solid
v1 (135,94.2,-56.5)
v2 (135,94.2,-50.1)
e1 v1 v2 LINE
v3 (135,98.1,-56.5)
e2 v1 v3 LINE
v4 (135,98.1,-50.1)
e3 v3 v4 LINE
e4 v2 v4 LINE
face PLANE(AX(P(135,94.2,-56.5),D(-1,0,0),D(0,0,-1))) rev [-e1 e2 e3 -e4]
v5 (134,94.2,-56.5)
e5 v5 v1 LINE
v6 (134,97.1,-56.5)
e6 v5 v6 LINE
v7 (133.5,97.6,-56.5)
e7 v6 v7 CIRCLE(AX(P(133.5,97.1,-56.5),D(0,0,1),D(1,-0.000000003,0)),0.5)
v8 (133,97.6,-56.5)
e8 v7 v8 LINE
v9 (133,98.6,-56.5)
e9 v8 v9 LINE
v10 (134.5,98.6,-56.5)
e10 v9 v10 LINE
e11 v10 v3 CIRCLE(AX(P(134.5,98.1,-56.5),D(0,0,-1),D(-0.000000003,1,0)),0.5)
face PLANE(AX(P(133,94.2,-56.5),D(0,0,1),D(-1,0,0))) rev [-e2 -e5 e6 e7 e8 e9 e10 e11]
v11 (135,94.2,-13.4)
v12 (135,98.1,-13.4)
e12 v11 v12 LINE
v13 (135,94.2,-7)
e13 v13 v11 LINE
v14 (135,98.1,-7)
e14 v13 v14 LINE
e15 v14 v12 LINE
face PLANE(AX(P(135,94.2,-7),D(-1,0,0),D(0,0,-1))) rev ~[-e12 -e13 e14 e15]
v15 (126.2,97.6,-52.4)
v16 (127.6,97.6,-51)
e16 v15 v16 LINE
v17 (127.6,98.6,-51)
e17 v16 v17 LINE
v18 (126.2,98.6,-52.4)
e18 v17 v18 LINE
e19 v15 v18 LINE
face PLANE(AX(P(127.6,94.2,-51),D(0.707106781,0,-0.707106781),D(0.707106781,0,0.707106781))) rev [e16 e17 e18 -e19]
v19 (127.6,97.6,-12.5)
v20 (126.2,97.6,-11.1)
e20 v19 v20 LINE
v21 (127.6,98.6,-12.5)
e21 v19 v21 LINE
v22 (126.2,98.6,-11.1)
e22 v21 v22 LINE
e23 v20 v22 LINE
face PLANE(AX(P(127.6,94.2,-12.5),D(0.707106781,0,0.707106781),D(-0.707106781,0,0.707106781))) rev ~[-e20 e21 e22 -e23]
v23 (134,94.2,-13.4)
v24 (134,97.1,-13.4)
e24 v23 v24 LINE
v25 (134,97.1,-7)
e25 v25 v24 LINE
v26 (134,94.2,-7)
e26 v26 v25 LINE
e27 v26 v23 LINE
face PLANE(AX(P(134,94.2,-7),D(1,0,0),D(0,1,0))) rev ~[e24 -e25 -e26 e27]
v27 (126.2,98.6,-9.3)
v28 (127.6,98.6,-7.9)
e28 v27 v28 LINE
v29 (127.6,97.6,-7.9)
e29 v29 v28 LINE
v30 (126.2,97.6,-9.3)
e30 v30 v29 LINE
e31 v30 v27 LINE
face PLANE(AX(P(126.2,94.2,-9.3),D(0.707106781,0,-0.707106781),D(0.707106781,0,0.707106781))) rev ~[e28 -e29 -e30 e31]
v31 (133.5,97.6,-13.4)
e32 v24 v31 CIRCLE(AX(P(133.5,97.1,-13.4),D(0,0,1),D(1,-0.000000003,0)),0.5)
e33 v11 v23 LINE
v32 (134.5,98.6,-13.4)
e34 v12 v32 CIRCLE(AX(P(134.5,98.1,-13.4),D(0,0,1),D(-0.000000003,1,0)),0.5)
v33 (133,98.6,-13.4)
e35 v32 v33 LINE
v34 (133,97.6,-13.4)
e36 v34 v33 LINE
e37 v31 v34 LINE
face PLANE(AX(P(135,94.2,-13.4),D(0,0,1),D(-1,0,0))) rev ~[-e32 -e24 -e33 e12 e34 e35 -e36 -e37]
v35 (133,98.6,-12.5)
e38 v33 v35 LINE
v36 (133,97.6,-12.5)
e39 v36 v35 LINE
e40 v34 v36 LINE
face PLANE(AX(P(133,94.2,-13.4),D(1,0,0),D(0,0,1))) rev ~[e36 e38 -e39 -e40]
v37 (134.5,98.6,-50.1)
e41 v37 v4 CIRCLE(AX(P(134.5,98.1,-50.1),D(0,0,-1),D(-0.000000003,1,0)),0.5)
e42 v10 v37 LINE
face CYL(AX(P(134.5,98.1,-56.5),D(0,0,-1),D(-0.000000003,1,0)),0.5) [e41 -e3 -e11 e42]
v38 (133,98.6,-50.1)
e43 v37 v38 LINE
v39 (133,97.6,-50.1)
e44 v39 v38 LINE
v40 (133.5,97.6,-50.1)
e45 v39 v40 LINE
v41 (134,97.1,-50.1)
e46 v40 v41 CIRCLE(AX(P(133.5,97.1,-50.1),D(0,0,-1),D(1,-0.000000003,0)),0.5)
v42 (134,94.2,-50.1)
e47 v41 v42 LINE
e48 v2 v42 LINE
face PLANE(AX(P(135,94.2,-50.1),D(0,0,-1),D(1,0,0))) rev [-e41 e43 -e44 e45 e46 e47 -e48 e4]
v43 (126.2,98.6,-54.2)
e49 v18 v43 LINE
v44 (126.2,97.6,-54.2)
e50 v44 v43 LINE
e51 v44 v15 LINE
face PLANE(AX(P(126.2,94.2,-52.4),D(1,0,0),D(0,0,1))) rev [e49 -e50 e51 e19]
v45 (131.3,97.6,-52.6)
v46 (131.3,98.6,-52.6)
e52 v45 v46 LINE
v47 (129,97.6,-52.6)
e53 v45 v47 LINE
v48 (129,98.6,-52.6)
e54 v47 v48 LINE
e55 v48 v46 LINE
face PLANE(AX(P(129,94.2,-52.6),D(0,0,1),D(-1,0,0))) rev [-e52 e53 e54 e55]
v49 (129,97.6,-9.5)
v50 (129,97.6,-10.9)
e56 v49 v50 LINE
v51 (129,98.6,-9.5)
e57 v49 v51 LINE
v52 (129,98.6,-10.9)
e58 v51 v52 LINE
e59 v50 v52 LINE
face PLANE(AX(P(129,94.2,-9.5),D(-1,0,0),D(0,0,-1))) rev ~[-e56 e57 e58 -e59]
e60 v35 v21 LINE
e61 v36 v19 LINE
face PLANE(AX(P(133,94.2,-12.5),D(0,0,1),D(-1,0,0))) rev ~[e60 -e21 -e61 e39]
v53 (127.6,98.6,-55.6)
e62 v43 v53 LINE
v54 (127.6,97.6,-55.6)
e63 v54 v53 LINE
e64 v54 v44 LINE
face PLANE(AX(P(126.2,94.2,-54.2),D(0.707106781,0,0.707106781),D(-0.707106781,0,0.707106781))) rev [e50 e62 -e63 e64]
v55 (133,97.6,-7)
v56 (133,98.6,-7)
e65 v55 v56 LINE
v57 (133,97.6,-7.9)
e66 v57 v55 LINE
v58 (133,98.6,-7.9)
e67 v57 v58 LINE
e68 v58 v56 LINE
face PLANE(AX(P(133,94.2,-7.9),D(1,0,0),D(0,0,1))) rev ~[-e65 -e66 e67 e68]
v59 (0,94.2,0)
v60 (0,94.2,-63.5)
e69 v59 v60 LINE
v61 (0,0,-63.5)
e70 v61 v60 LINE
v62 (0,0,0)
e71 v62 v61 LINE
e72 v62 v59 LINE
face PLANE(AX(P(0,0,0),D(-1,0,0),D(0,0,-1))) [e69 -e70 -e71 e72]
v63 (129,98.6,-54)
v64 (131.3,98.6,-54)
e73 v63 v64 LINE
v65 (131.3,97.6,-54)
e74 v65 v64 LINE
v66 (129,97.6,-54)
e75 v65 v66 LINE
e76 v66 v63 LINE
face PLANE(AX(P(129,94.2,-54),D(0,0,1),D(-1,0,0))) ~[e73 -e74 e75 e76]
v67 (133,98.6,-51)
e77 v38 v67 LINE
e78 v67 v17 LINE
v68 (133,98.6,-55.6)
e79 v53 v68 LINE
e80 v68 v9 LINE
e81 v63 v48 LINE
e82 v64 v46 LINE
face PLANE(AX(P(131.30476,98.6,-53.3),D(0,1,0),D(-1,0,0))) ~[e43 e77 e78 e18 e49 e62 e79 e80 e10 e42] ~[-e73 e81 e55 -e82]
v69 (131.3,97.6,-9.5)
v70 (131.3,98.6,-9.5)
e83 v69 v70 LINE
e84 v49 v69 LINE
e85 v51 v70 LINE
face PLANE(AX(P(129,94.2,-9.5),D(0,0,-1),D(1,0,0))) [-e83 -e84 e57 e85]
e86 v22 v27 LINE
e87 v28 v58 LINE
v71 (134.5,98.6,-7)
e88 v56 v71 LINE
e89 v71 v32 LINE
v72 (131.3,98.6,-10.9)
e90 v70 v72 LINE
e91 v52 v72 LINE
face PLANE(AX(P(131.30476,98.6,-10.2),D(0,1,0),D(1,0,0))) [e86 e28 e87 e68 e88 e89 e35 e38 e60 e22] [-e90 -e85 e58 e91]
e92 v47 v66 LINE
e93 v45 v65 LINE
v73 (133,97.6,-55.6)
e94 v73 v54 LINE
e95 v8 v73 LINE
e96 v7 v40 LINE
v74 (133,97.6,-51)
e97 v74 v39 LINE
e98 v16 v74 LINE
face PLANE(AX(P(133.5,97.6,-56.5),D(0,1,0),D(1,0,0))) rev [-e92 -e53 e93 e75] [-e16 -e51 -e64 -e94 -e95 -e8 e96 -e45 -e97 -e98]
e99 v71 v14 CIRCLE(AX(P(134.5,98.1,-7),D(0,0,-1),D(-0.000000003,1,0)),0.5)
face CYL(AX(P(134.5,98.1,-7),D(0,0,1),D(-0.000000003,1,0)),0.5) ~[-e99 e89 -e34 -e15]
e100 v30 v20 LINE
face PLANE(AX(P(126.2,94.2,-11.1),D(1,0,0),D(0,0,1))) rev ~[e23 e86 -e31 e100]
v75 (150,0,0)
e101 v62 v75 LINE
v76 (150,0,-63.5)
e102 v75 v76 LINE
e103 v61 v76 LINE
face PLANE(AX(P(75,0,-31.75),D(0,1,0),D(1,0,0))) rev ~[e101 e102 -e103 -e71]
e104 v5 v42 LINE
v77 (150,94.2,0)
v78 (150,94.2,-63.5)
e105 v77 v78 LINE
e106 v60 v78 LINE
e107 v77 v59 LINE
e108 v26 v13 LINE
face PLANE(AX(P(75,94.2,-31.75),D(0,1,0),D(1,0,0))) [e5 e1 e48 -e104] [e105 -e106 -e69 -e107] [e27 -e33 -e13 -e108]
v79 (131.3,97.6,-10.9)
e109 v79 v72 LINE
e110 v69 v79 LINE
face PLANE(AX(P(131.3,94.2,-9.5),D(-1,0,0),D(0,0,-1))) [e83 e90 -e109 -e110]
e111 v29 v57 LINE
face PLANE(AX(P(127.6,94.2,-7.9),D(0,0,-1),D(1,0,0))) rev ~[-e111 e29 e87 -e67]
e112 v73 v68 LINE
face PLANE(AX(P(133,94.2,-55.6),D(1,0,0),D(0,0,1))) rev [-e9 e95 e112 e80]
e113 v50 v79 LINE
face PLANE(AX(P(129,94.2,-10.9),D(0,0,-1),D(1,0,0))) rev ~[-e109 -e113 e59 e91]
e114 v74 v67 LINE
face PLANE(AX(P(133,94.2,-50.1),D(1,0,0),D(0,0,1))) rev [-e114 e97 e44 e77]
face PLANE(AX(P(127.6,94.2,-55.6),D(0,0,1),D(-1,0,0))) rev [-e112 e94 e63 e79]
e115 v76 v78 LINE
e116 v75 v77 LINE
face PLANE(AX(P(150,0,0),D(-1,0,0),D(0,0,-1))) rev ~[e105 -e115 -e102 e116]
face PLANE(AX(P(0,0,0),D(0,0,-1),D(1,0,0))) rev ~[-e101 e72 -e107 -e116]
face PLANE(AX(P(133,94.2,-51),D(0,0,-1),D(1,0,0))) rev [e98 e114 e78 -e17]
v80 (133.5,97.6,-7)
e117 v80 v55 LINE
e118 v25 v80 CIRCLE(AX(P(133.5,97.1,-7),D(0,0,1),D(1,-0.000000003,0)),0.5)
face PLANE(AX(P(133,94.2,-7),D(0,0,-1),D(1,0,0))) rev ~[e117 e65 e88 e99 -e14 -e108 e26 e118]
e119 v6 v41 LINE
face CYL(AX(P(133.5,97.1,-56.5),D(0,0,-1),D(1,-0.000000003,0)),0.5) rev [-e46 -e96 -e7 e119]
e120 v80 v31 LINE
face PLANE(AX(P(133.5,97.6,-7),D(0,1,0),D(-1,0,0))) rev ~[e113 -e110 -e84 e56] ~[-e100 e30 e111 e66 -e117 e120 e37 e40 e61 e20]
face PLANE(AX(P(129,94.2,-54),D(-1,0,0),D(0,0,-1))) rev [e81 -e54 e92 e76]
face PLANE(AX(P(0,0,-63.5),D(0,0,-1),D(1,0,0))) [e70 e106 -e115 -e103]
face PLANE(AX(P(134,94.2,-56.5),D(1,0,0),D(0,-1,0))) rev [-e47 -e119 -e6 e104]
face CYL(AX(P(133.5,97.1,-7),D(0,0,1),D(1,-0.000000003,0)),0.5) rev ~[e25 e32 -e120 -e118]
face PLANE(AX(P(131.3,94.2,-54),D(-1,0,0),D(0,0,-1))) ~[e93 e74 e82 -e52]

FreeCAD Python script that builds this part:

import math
import FreeCAD as App
import Part
import Sketcher
from FreeCAD import Vector
Q = App.Units.Quantity

doc = App.newDocument("Part")
body = doc.addObject("PartDesign::Body", "Body")

sketch1 = body.newObject("Sketcher::SketchObject", "Sketch")
sketch1.AttachmentSupport = (doc.getObject("XZ_Plane"), [""])
sketch1.MapMode = "FlatFace"
sketch1.addGeometry([
    Part.LineSegment(Vector(0, -64, 0), Vector(0, 0, 0)),
    Part.LineSegment(Vector(0, 0, 0), Vector(150, 0, 0)),
    Part.LineSegment(Vector(150, 0, 0), Vector(150, -64, 0)),
    Part.LineSegment(Vector(150, -64, 0), Vector(0, -64, 0)),
], False)
sketch1.addConstraint([
    Sketcher.Constraint("Coincident", 0, 2, 1, 1),
    Sketcher.Constraint("Coincident", 1, 2, 2, 1),
    Sketcher.Constraint("Coincident", 2, 2, 3, 1),
    Sketcher.Constraint("Coincident", 3, 2, 0, 1),
    Sketcher.Constraint("Vertical", 0),
    Sketcher.Constraint("Horizontal", 1),
    Sketcher.Constraint("Vertical", 2),
    Sketcher.Constraint("Horizontal", 3),
    Sketcher.Constraint("Coincident", 0, 2, -1, 1),
    Sketcher.Constraint("DistanceX", 1, 1, 1, 2, Q("150 mm")),
    Sketcher.Constraint("DistanceY", 0, 1, 0, 2, Q("63.5 mm")),
])
pad1 = body.newObject("PartDesign::Pad", "Pad")
pad1.Profile = sketch1
pad1.Length = 94.2
pad1.Reversed = True

sketch2 = body.newObject("Sketcher::SketchObject", "Sketch001")
sketch2.AttachmentSupport = (doc.getObject("XZ_Plane"), [""])
sketch2.MapMode = "FlatFace"
sketch2.AttachmentOffset = App.Placement(Vector(0, 0, -94.2), App.Rotation())
sketch2.addGeometry([
    Part.LineSegment(Vector(135, -7, 0), Vector(135, -13.4, 0)),
    Part.LineSegment(Vector(135, -13.4, 0), Vector(133, -13.4, 0)),
    Part.LineSegment(Vector(133, -13.4, 0), Vector(133, -12.5, 0)),
    Part.LineSegment(Vector(133, -12.5, 0), Vector(127.6, -12.5, 0)),
    Part.LineSegment(Vector(127.6, -12.5, 0), Vector(126.2, -11.1, 0)),
    Part.LineSegment(Vector(126.2, -11.1, 0), Vector(126.2, -9.3, 0)),
    Part.LineSegment(Vector(126.2, -9.3, 0), Vector(127.6, -7.9, 0)),
    Part.LineSegment(Vector(127.6, -7.9, 0), Vector(133, -7.9, 0)),
    Part.LineSegment(Vector(133, -7.9, 0), Vector(133, -7, 0)),
    Part.LineSegment(Vector(133, -7, 0), Vector(135, -7, 0)),
    Part.LineSegment(Vector(131.3, -9.5, 0), Vector(129, -9.5, 0)),
    Part.LineSegment(Vector(129, -9.5, 0), Vector(129, -10.9, 0)),
    Part.LineSegment(Vector(129, -10.9, 0), Vector(131.3, -10.9, 0)),
    Part.LineSegment(Vector(131.3, -10.9, 0), Vector(131.3, -9.5, 0)),
], False)
sketch2.addConstraint([
    Sketcher.Constraint("Coincident", 0, 2, 1, 1),
    Sketcher.Constraint("Coincident", 1, 2, 2, 1),
    Sketcher.Constraint("Coincident", 2, 2, 3, 1),
    Sketcher.Constraint("Coincident", 3, 2, 4, 1),
    Sketcher.Constraint("Coincident", 4, 2, 5, 1),
    Sketcher.Constraint("Coincident", 5, 2, 6, 1),
    Sketcher.Constraint("Coincident", 6, 2, 7, 1),
    Sketcher.Constraint("Coincident", 7, 2, 8, 1),
    Sketcher.Constraint("Coincident", 8, 2, 9, 1),
    Sketcher.Constraint("Coincident", 9, 2, 0, 1),
    Sketcher.Constraint("Coincident", 10, 2, 11, 1),
    Sketcher.Constraint("Coincident", 11, 2, 12, 1),
    Sketcher.Constraint("Coincident", 12, 2, 13, 1),
    Sketcher.Constraint("Coincident", 13, 2, 10, 1),
    Sketcher.Constraint("Vertical", 0),
    Sketcher.Constraint("Horizontal", 1),
    Sketcher.Constraint("Vertical", 2),
    Sketcher.Constraint("Horizontal", 3),
    Sketcher.Constraint("Vertical", 5),
    Sketcher.Constraint("Horizontal", 7),
    Sketcher.Constraint("Vertical", 8),
    Sketcher.Constraint("Horizontal", 9),
    Sketcher.Constraint("Horizontal", 10),
    Sketcher.Constraint("Vertical", 11),
    Sketcher.Constraint("Horizontal", 12),
    Sketcher.Constraint("Vertical", 13),
    Sketcher.Constraint("Perpendicular", 4, 6),
    Sketcher.Constraint("Vertical", 3, 2, 6, 2),
    Sketcher.Constraint("Vertical", 2, 2, 7, 2),
    Sketcher.Constraint("Equal", 2, 8),
    Sketcher.Constraint("Equal", 4, 6),
    Sketcher.Constraint("DistanceX", 1, 2, 1, 1, Q("2 mm")),
    Sketcher.Constraint("DistanceX", 3, 2, 3, 1, Q("5.4 mm")),
    Sketcher.Constraint("DistanceX", 10, 2, 10, 1, Q("2.3 mm")),
    Sketcher.Constraint("DistanceY", 0, 2, 0, 1, Q("6.4 mm")),
    Sketcher.Constraint("DistanceY", 2, 1, 2, 2, Q("0.9 mm")),
    Sketcher.Constraint("DistanceY", 5, 1, 5, 2, Q("1.8 mm")),
    Sketcher.Constraint("DistanceY", 11, 2, 11, 1, Q("1.4 mm")),
    Sketcher.Constraint("DistanceX", -1, 1, 0, 2, Q("135 mm")),
    Sketcher.Constraint("DistanceY", 8, 2, -1, 1, Q("7 mm")),
    Sketcher.Constraint("DistanceX", -1, 1, 10, 2, Q("129 mm")),
    Sketcher.Constraint("DistanceY", 3, 2, 10, 2, Q("3 mm")),
])
pad2 = body.newObject("PartDesign::Pad", "Pad001")
pad2.Profile = sketch2
pad2.Length = 4.4
pad2.Reversed = True

sketch3 = body.newObject("Sketcher::SketchObject", "Sketch002")
sketch3.AttachmentSupport = (doc.getObject("XY_Plane"), [""])
sketch3.MapMode = "FlatFace"
sketch3.AttachmentOffset = App.Placement(Vector(0, 0, -7), App.Rotation())
sketch3.addGeometry([
    Part.LineSegment(Vector(126.2, 97.6, 0), Vector(126.2, 94.2, 0)),
    Part.LineSegment(Vector(126.2, 94.2, 0), Vector(134, 94.2, 0)),
    Part.LineSegment(Vector(134, 94.2, 0), Vector(134, 97.1, 0)),
    Part.ArcOfCircle(Part.Circle(Vector(133.5, 97.1, 0), Vector(0, 0, 1), 0.5), math.radians(0), math.radians(90)),
    Part.LineSegment(Vector(133.5, 97.6, 0), Vector(126.2, 97.6, 0)),
    Part.ArcOfCircle(Part.Circle(Vector(134.5, 98.1, 0), Vector(0, 0, 1), 0.5), math.radians(0), math.radians(90)),
    Part.LineSegment(Vector(135, 98.1, 0), Vector(135, 98.6, 0)),
    Part.LineSegment(Vector(135, 98.6, 0), Vector(134.5, 98.6, 0)),
], False)
sketch3.addConstraint([
    Sketcher.Constraint("Coincident", 0, 2, 1, 1),
    Sketcher.Constraint("Coincident", 1, 2, 2, 1),
    Sketcher.Constraint("Tangent", 2, 2, 3, 1),
    Sketcher.Constraint("Tangent", 3, 2, 4, 1),
    Sketcher.Constraint("Coincident", 4, 2, 0, 1),
    Sketcher.Constraint("Tangent", 5, 1, 6, 1),
    Sketcher.Constraint("Coincident", 6, 2, 7, 1),
    Sketcher.Constraint("Tangent", 7, 2, 5, 2),
    Sketcher.Constraint("Vertical", 0),
    Sketcher.Constraint("Horizontal", 1),
    Sketcher.Constraint("Vertical", 2),
    Sketcher.Constraint("Horizontal", 4),
    Sketcher.Constraint("Vertical", 6),
    Sketcher.Constraint("Horizontal", 7),
    Sketcher.Constraint("Equal", 3, 5),
    Sketcher.Constraint("Radius", 3, Q("0.5 mm")),
    Sketcher.Constraint("DistanceX", 1, 1, 1, 2, Q("7.8 mm")),
    Sketcher.Constraint("DistanceY", 0, 2, 0, 1, Q("3.4 mm")),
    Sketcher.Constraint("DistanceX", -1, 1, 1, 2, Q("134 mm")),
    Sketcher.Constraint("DistanceX", -1, 1, 5, 1, Q("135 mm")),
    Sketcher.Constraint("DistanceY", 3, 3, 5, 3, Q("1 mm")),
    Sketcher.Constraint("DistanceY", -1, 1, 3, 3, Q("97.1 mm")),
])
pocket1 = body.newObject("PartDesign::Pocket", "Pocket")
pocket1.Profile = sketch3
pocket1.Type = "ThroughAll"
doc.recompute()

datumplane = body.newObject("PartDesign::Plane", "DatumPlane")
datumplane.AttachmentSupport = (doc.getObject("XY_Plane"), [""])
datumplane.MapMode = "FlatFace"
datumplane.AttachmentOffset = App.Placement(Vector(0, 0, -31.75), App.Rotation())
mirrored = body.newObject("PartDesign::Mirrored", "Mirrored")
mirrored.Originals = [pad2, pocket1]
mirrored.MirrorPlane = (datumplane, [""])
body.Tip = mirrored

doc.recompute()
